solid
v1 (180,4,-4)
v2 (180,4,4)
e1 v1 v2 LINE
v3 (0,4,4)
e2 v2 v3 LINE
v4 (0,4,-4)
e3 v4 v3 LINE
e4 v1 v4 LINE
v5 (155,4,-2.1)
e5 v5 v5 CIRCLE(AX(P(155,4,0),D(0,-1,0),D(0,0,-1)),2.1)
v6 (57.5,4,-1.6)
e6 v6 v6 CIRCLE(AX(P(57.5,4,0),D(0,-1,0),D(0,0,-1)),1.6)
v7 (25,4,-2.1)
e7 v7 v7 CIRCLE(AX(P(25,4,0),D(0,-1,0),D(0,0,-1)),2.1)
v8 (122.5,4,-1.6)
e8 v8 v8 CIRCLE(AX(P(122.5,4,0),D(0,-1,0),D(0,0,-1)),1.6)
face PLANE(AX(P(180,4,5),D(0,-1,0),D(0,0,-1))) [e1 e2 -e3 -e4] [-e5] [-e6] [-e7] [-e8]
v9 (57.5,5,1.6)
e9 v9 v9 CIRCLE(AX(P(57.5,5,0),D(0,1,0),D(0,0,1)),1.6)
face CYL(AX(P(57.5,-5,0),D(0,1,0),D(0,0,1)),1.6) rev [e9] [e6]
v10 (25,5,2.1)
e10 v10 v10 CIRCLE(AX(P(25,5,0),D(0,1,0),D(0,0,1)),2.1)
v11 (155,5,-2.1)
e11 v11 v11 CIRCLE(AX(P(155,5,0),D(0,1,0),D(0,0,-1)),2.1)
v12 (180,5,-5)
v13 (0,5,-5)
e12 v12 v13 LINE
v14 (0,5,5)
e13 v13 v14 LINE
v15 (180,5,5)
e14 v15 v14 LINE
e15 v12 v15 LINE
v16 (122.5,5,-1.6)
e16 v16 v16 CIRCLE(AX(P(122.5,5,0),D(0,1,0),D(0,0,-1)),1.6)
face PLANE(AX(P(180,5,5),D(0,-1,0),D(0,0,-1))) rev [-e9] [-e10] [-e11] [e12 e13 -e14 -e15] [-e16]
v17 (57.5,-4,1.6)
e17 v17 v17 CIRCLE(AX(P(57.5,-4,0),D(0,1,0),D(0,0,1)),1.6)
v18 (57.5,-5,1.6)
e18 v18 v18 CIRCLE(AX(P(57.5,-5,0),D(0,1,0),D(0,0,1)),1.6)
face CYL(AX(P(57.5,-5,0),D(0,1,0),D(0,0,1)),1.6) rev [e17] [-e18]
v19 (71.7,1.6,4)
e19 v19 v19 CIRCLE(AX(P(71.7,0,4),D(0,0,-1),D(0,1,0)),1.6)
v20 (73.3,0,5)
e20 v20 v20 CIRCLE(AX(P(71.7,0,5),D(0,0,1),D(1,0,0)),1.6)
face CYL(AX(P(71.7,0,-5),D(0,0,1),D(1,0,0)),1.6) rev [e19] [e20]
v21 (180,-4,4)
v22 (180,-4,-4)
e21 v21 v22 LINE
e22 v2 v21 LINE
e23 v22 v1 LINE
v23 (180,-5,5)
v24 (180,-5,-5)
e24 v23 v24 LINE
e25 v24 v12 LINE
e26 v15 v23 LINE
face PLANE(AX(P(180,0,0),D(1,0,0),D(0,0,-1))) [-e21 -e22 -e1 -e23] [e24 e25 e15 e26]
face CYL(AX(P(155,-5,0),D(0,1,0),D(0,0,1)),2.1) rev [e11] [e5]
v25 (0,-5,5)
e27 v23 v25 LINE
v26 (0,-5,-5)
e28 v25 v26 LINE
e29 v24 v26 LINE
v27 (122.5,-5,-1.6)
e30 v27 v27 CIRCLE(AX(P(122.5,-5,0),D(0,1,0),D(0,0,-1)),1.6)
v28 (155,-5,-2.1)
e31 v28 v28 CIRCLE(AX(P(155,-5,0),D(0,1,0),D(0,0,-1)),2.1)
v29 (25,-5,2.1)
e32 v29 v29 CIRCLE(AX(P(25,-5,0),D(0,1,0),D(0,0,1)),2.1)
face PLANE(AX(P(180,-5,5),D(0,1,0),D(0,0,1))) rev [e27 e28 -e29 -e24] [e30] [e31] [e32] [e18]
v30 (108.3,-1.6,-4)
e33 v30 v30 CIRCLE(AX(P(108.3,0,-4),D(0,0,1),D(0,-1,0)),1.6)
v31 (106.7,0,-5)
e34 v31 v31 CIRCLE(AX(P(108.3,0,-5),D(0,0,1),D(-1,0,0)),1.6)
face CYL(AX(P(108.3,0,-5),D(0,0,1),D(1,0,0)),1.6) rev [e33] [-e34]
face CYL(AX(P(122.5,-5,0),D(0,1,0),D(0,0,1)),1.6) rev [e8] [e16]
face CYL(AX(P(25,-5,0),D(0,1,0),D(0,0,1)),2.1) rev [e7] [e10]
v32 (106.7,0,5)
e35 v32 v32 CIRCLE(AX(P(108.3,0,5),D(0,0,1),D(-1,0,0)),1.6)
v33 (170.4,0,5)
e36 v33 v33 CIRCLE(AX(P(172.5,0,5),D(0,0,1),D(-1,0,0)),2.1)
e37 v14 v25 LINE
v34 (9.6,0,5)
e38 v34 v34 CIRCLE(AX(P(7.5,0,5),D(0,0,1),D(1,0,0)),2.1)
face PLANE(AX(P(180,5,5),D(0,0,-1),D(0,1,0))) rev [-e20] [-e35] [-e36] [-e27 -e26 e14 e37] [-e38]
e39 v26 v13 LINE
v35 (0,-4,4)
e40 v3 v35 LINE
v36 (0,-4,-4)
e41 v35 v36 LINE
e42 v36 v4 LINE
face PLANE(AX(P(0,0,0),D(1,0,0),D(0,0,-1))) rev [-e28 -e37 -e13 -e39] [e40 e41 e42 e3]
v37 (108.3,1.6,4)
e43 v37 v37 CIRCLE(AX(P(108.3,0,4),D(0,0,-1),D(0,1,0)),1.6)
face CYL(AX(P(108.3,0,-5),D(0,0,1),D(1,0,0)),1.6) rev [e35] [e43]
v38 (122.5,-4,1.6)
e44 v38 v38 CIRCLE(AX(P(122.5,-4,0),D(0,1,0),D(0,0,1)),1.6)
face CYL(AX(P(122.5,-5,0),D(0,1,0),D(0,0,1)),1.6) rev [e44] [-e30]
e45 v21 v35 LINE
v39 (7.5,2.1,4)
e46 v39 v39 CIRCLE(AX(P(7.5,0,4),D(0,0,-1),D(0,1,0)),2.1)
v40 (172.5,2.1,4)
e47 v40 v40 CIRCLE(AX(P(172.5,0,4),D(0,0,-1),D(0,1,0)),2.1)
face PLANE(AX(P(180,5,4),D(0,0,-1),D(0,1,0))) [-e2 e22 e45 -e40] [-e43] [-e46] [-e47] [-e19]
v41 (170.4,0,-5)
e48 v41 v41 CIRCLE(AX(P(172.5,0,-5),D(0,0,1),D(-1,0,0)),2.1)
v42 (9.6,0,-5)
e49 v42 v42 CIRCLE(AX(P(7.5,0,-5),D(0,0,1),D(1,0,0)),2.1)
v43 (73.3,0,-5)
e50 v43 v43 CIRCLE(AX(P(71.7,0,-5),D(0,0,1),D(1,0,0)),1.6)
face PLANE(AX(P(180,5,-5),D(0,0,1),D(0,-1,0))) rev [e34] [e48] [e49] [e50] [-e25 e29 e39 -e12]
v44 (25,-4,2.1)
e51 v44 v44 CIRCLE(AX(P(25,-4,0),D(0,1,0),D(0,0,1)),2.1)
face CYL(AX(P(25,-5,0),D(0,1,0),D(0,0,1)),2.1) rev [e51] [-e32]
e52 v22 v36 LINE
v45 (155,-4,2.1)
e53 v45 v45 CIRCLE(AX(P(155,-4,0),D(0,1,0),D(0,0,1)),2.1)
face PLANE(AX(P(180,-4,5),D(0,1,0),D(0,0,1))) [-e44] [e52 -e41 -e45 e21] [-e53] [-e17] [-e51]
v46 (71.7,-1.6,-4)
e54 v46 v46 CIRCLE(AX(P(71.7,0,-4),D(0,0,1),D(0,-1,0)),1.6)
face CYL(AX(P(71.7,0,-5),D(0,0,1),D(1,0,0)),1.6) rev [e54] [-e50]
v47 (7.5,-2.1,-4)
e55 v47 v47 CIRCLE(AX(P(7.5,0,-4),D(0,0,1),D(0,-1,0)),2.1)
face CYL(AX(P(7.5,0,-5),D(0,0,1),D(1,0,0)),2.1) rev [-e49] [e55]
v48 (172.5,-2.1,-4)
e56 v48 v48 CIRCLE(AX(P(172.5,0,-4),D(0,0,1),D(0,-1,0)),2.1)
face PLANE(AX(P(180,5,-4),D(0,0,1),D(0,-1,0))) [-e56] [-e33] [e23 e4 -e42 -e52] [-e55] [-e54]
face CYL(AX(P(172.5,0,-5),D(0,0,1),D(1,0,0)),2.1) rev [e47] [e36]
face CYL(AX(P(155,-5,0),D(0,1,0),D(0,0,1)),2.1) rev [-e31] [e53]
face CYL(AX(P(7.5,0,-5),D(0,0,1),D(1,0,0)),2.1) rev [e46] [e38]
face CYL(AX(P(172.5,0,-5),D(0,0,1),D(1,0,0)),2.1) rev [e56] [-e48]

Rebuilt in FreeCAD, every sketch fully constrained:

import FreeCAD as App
import Part
import Sketcher
from FreeCAD import Vector
Q = App.Units.Quantity

doc = App.newDocument("Part")
body = doc.addObject("PartDesign::Body", "Body")

# Sketch on YZ plane
sketch1 = body.newObject("Sketcher::SketchObject", "Sketch")
sketch1.AttachmentSupport = (doc.getObject("YZ_Plane"), [""])
sketch1.MapMode = "FlatFace"
sketch1.addGeometry(Part.LineSegment(Vector(5, 5, 0), Vector(-5, 5, 0)), False)
sketch1.addGeometry(Part.LineSegment(Vector(-5, 5, 0), Vector(-5, -5, 0)), False)
sketch1.addGeometry(Part.LineSegment(Vector(-5, -5, 0), Vector(5, -5, 0)), False)
sketch1.addGeometry(Part.LineSegment(Vector(5, -5, 0), Vector(5, 5, 0)), False)
sketch1.addGeometry(Part.LineSegment(Vector(-4, -4, 0), Vector(-4, 4, 0)), False)
sketch1.addGeometry(Part.LineSegment(Vector(-4, 4, 0), Vector(4, 4, 0)), False)
sketch1.addGeometry(Part.LineSegment(Vector(4, 4, 0), Vector(4, -4, 0)), False)
sketch1.addGeometry(Part.LineSegment(Vector(4, -4, 0), Vector(-4, -4, 0)), False)
sketch1.addConstraint(Sketcher.Constraint("Coincident", 0, 2, 1, 1))
sketch1.addConstraint(Sketcher.Constraint("Coincident", 1, 2, 2, 1))
sketch1.addConstraint(Sketcher.Constraint("Coincident", 2, 2, 3, 1))
sketch1.addConstraint(Sketcher.Constraint("Coincident", 3, 2, 0, 1))
sketch1.addConstraint(Sketcher.Constraint("Coincident", 4, 2, 5, 1))
sketch1.addConstraint(Sketcher.Constraint("Coincident", 5, 2, 6, 1))
sketch1.addConstraint(Sketcher.Constraint("Coincident", 6, 2, 7, 1))
sketch1.addConstraint(Sketcher.Constraint("Coincident", 7, 2, 4, 1))
sketch1.addConstraint(Sketcher.Constraint("Horizontal", 0))
sketch1.addConstraint(Sketcher.Constraint("Vertical", 1))
sketch1.addConstraint(Sketcher.Constraint("Horizontal", 2))
sketch1.addConstraint(Sketcher.Constraint("Vertical", 3))
sketch1.addConstraint(Sketcher.Constraint("Vertical", 4))
sketch1.addConstraint(Sketcher.Constraint("Horizontal", 5))
sketch1.addConstraint(Sketcher.Constraint("Vertical", 6))
sketch1.addConstraint(Sketcher.Constraint("Horizontal", 7))
sketch1.addConstraint(Sketcher.Constraint("Symmetric", 0, 2, 2, 2, -1, 1))
sketch1.addConstraint(Sketcher.Constraint("Symmetric", 4, 2, 6, 2, -1, 1))
sketch1.addConstraint(Sketcher.Constraint("Equal", 2, 1))
sketch1.addConstraint(Sketcher.Constraint("Equal", 7, 4))
sketch1.addConstraint(Sketcher.Constraint("DistanceX", 0, 2, 0, 1, Q("10 mm")))
sketch1.addConstraint(Sketcher.Constraint("DistanceX", 5, 1, 5, 2, Q("8 mm")))
pad1 = body.newObject("PartDesign::Pad", "Pad")
pad1.Profile = sketch1
pad1.Length = 180

# Sketch on XY plane
sketch2 = body.newObject("Sketcher::SketchObject", "Sketch001")
sketch2.AttachmentSupport = (doc.getObject("XY_Plane"), [""])
sketch2.MapMode = "FlatFace"
sketch2.AttachmentOffset = App.Placement(Vector(0, 0, 5), App.Rotation())
sketch2.addGeometry(Part.Circle(Vector(7.5, 0, 0), Vector(0, 0, 1), 2.1), False)
sketch2.addGeometry(Part.Circle(Vector(172.5, 0, 0), Vector(0, 0, 1), 2.1), False)
sketch2.addConstraint(Sketcher.Constraint("Equal", 0, 1))
sketch2.addConstraint(Sketcher.Constraint("PointOnObject", 0, 3, -1))
sketch2.addConstraint(Sketcher.Constraint("PointOnObject", 1, 3, -1))
sketch2.addConstraint(Sketcher.Constraint("Diameter", 0, Q("4.2 mm")))
sketch2.addConstraint(Sketcher.Constraint("DistanceX", 0, 3, 1, 3, Q("165 mm")))
sketch2.addConstraint(Sketcher.Constraint("DistanceX", -1, 1, 0, 3, Q("7.5 mm")))
pocket1 = body.newObject("PartDesign::Pocket", "Pocket")
pocket1.Profile = sketch2
pocket1.Type = "ThroughAll"

# Sketch on XZ plane
sketch3 = body.newObject("Sketcher::SketchObject", "Sketch002")
sketch3.AttachmentSupport = (doc.getObject("XZ_Plane"), [""])
sketch3.MapMode = "FlatFace"
sketch3.AttachmentOffset = App.Placement(Vector(0, 0, -5), App.Rotation())
sketch3.addGeometry(Part.Circle(Vector(25, 0, 0), Vector(0, 0, 1), 2.1), False)
sketch3.addGeometry(Part.Circle(Vector(155, 0, 0), Vector(0, 0, 1), 2.1), False)
sketch3.addConstraint(Sketcher.Constraint("Equal", 0, 1))
sketch3.addConstraint(Sketcher.Constraint("PointOnObject", 0, 3, -1))
sketch3.addConstraint(Sketcher.Constraint("PointOnObject", 1, 3, -1))
sketch3.addConstraint(Sketcher.Constraint("Diameter", 0, Q("4.2 mm")))
sketch3.addConstraint(Sketcher.Constraint("DistanceX", -1, 1, 0, 3, Q("25 mm")))
sketch3.addConstraint(Sketcher.Constraint("DistanceX", -1, 1, 1, 3, Q("155 mm")))
pocket2 = body.newObject("PartDesign::Pocket", "Pocket001")
pocket2.Profile = sketch3
pocket2.Type = "ThroughAll"
pocket2.Reversed = True

# Sketch on XY plane
sketch4 = body.newObject("Sketcher::SketchObject", "Sketch003")
sketch4.AttachmentSupport = (doc.getObject("XY_Plane"), [""])
sketch4.MapMode = "FlatFace"
sketch4.AttachmentOffset = App.Placement(Vector(0, 0, 5), App.Rotation())
sketch4.addGeometry(Part.Circle(Vector(71.7, 0, 0), Vector(0, 0, 1), 1.6), False)
sketch4.addGeometry(Part.Circle(Vector(108.3, 0, 0), Vector(0, 0, 1), 1.6), False)
sketch4.addConstraint(Sketcher.Constraint("Equal", 0, 1))
sketch4.addConstraint(Sketcher.Constraint("PointOnObject", 0, 3, -1))
sketch4.addConstraint(Sketcher.Constraint("PointOnObject", 1, 3, -1))
sketch4.addConstraint(Sketcher.Constraint("Diameter", 0, Q("3.2 mm")))
sketch4.addConstraint(Sketcher.Constraint("DistanceX", -1, 1, 0, 3, Q("71.7 mm")))
sketch4.addConstraint(Sketcher.Constraint("DistanceX", -1, 1, 1, 3, Q("108.3 mm")))
pocket3 = body.newObject("PartDesign::Pocket", "Pocket002")
pocket3.Profile = sketch4
pocket3.Type = "ThroughAll"

# Sketch on XZ plane
sketch5 = body.newObject("Sketcher::SketchObject", "Sketch004")
sketch5.AttachmentSupport = (doc.getObject("XZ_Plane"), [""])
sketch5.MapMode = "FlatFace"
sketch5.AttachmentOffset = App.Placement(Vector(0, 0, -5), App.Rotation())
sketch5.addGeometry(Part.Circle(Vector(57.5, 0, 0), Vector(0, 0, 1), 1.6), False)
sketch5.addGeometry(Part.Circle(Vector(122.5, 0, 0), Vector(0, 0, 1), 1.6), False)
sketch5.addConstraint(Sketcher.Constraint("Equal", 0, 1))
sketch5.addConstraint(Sketcher.Constraint("PointOnObject", 0, 3, -1))
sketch5.addConstraint(Sketcher.Constraint("PointOnObject", 1, 3, -1))
sketch5.addConstraint(Sketcher.Constraint("Diameter", 0, Q("3.2 mm")))
sketch5.addConstraint(Sketcher.Constraint("DistanceX", 0, 3, 1, 3, Q("65 mm")))
sketch5.addConstraint(Sketcher.Constraint("DistanceX", -1, 1, 0, 3, Q("57.5 mm")))
pocket4 = body.newObject("PartDesign::Pocket", "Pocket003")
pocket4.Profile = sketch5
pocket4.Type = "ThroughAll"
pocket4.Reversed = True

doc.recompute()
